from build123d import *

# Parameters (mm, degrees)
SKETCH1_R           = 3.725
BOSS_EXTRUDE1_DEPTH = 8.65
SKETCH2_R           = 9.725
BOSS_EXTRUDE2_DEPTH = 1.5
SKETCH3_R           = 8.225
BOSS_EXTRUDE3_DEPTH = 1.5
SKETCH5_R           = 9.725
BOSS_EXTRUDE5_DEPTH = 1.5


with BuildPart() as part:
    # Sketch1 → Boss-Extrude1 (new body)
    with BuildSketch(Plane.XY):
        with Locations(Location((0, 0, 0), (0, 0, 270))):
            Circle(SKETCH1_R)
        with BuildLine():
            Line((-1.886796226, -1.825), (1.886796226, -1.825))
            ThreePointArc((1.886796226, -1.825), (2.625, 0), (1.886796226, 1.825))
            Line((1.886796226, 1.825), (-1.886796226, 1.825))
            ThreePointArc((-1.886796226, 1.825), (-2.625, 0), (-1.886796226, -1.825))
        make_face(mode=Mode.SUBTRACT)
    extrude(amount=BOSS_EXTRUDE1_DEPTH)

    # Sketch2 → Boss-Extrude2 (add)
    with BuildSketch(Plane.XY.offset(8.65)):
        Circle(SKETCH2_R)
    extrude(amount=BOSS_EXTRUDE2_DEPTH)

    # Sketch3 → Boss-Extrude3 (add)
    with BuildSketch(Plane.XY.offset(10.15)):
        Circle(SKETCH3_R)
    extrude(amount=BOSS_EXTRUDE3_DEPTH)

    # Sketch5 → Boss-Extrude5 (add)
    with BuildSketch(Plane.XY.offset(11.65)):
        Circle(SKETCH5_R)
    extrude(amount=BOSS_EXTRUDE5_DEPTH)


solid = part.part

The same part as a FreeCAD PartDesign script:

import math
import FreeCAD as App
import Part
import Sketcher

V = App.Vector
Q = App.Units.Quantity

doc = App.newDocument("Part")
body = doc.addObject("PartDesign::Body", "Body")

# Sketch on XY plane
sketch1 = body.newObject("Sketcher::SketchObject", "Sketch")
sketch1.AttachmentSupport = (doc.getObject("XY_Plane"), [""])
sketch1.MapMode = "FlatFace"
sketch1.addGeometry([
    Part.Circle(V(0, 0, 0), V(0, 0, 1), 3.7),  # 0
    Part.LineSegment(V(1.9, -1.8, 0), V(-1.9, -1.8, 0)),  # 1
    Part.ArcOfCircle(Part.Circle(V(0, 0, 0), V(0, 0, 1), 2.6), math.radians(136), math.radians(224)),  # 2
    Part.LineSegment(V(-1.9, 1.8, 0), V(1.9, 1.8, 0)),  # 3
    Part.ArcOfCircle(Part.Circle(V(0, 0, 0), V(0, 0, 1), 2.6), math.radians(-44), math.radians(44)),  # 4
], False)
sketch1.addConstraint([
    Sketcher.Constraint("Coincident", 1, 2, 2, 2),
    Sketcher.Constraint("Coincident", 2, 1, 3, 1),
    Sketcher.Constraint("Coincident", 3, 2, 4, 2),
    Sketcher.Constraint("Coincident", 4, 1, 1, 1),
    Sketcher.Constraint("Horizontal", 1),
    Sketcher.Constraint("Horizontal", 3),
    Sketcher.Constraint("Coincident", 0, 3, -1, 1),
    Sketcher.Constraint("Coincident", 2, 3, -1, 1),
    Sketcher.Constraint("Coincident", 4, 3, -1, 1),
    Sketcher.Constraint("Equal", 2, 4),
    Sketcher.Constraint("Vertical", 1, 2, 2, 1),
    Sketcher.Constraint("Diameter", 0, Q("7.45 mm")),
    Sketcher.Constraint("Radius", 2, Q("2.625 mm")),
    Sketcher.Constraint("DistanceY", 1, 2, 2, 1, Q("3.65 mm")),
])
pad1 = body.newObject("PartDesign::Pad", "Pad")
pad1.Profile = sketch1
pad1.Length = 8.65

# Sketch on XY plane
sketch2 = body.newObject("Sketcher::SketchObject", "Sketch001")
sketch2.AttachmentSupport = (doc.getObject("XY_Plane"), [""])
sketch2.MapMode = "FlatFace"
sketch2.AttachmentOffset = App.Placement(V(0, 0, 8.65), App.Rotation())
sketch2.addGeometry(Part.Circle(V(0, 0, 0), V(0, 0, 1), 10), False)
sketch2.addConstraint([
    Sketcher.Constraint("Coincident", 0, 3, -1, 1),
    Sketcher.Constraint("Diameter", 0, Q("19.45 mm")),
])
pad2 = body.newObject("PartDesign::Pad", "Pad001")
pad2.Profile = sketch2
pad2.Length = 1.5

# Sketch on XY plane
sketch3 = body.newObject("Sketcher::SketchObject", "Sketch002")
sketch3.AttachmentSupport = (doc.getObject("XY_Plane"), [""])
sketch3.MapMode = "FlatFace"
sketch3.AttachmentOffset = App.Placement(V(0, 0, 10.15), App.Rotation())
sketch3.addGeometry(Part.Circle(V(0, 0, 0), V(0, 0, 1), 8), False)
sketch3.addConstraint([
    Sketcher.Constraint("Coincident", 0, 3, -1, 1),
    Sketcher.Constraint("Diameter", 0, Q("16.45 mm")),
])
pad3 = body.newObject("PartDesign::Pad", "Pad002")
pad3.Profile = sketch3
pad3.Length = 1.5

# Sketch on XY plane
sketch4 = body.newObject("Sketcher::SketchObject", "Sketch003")
sketch4.AttachmentSupport = (doc.getObject("XY_Plane"), [""])
sketch4.MapMode = "FlatFace"
sketch4.AttachmentOffset = App.Placement(V(0, 0, 11.65), App.Rotation())
sketch4.addGeometry(Part.Circle(V(0, 0, 0), V(0, 0, 1), 10), False)
sketch4.addConstraint([
    Sketcher.Constraint("Coincident", 0, 3, -1, 1),
    Sketcher.Constraint("Diameter", 0, Q("19.45 mm")),
])
pad4 = body.newObject("PartDesign::Pad", "Pad003")
pad4.Profile = sketch4
pad4.Length = 1.5

doc.recompute()
